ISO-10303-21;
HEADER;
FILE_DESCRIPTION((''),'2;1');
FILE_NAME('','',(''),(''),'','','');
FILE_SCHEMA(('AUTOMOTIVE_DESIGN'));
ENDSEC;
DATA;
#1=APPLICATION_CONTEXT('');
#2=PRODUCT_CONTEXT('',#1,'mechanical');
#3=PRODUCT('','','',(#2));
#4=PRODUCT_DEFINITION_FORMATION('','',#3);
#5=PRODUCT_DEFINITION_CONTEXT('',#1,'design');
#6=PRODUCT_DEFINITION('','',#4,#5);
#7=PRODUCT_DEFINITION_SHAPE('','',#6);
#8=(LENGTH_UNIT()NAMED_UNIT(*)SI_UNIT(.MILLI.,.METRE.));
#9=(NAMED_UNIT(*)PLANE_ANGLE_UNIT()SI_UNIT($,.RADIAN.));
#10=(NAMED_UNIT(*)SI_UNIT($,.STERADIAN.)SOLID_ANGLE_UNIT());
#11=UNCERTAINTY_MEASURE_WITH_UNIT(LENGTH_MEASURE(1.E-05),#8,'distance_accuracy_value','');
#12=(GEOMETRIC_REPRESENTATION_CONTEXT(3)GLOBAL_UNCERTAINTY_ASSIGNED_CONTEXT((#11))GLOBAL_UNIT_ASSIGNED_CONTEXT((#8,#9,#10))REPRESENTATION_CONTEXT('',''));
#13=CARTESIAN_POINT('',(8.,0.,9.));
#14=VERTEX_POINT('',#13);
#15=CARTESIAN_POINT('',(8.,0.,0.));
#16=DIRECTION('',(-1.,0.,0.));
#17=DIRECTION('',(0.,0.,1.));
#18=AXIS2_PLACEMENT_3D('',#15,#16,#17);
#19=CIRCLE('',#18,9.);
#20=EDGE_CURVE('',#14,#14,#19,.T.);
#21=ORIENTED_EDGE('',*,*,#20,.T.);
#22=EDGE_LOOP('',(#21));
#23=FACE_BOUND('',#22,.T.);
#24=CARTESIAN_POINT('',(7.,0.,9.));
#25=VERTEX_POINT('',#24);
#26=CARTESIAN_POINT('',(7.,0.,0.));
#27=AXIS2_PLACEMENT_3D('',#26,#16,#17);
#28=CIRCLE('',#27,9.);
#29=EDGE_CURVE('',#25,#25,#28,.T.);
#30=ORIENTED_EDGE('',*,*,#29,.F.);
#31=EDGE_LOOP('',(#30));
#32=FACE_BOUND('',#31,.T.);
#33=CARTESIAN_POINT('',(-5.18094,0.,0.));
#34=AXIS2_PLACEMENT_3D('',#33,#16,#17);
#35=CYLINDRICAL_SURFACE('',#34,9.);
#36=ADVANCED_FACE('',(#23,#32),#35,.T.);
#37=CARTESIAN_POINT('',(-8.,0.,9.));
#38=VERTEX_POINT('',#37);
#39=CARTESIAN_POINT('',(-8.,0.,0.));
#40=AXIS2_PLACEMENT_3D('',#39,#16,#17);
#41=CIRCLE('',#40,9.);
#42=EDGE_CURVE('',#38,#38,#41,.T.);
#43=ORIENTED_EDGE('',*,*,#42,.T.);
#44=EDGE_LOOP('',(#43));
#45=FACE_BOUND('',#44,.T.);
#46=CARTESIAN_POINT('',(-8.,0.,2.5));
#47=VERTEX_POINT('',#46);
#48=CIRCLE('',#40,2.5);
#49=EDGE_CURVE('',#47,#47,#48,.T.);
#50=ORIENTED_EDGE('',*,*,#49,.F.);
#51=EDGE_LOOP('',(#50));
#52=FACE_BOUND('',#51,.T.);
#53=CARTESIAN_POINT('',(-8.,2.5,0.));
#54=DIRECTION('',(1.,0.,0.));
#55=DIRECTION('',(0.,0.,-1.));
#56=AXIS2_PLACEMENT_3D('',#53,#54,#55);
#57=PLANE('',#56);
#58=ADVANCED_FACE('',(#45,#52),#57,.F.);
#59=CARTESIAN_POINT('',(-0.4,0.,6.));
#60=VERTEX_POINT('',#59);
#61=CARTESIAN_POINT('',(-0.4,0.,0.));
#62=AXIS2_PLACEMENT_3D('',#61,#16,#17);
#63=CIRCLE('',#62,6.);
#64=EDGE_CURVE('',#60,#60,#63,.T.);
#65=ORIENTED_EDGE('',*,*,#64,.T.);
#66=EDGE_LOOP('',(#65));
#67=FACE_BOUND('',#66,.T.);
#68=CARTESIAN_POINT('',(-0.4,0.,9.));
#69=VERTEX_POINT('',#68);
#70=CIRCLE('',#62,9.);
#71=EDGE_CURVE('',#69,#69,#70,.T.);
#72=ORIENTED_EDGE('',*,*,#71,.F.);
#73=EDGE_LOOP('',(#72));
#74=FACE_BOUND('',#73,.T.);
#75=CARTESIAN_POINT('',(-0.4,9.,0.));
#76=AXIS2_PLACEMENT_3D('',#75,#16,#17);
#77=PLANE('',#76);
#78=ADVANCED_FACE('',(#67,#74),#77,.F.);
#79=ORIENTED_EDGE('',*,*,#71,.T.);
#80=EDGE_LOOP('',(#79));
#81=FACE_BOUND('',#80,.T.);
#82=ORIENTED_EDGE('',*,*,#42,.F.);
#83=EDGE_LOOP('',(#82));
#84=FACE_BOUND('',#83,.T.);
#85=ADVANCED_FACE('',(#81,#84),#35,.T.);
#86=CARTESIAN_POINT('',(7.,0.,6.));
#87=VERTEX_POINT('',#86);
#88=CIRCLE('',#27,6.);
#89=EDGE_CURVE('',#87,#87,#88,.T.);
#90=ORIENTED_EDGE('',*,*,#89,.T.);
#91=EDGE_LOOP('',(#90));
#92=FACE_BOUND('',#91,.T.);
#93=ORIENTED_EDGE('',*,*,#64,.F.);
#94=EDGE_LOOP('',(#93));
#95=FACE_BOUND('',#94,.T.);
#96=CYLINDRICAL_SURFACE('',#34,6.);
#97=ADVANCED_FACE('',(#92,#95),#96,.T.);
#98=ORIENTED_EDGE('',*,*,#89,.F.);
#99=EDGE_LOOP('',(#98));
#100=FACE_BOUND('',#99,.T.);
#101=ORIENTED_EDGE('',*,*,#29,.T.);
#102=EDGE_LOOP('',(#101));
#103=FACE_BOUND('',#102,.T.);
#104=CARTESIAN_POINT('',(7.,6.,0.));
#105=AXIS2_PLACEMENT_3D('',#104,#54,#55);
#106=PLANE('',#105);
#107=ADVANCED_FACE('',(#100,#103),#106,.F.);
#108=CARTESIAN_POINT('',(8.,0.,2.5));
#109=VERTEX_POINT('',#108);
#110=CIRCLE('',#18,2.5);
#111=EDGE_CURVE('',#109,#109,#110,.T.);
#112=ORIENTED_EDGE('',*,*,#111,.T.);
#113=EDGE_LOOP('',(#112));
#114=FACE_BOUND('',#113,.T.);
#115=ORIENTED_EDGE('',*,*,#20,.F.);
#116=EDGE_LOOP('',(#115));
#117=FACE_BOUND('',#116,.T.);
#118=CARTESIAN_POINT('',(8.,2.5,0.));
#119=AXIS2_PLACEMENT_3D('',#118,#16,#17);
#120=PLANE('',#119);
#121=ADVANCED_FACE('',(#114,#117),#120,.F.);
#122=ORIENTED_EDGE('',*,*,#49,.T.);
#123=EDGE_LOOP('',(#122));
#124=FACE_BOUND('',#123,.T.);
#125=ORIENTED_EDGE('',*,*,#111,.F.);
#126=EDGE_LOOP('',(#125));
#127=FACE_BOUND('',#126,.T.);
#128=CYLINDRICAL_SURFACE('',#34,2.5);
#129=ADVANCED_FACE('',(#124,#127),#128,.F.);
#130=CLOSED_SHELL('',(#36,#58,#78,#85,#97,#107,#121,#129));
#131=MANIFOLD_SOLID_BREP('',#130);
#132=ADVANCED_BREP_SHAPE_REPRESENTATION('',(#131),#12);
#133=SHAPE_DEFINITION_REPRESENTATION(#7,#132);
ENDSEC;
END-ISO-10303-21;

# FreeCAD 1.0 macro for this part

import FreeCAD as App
import Part
import Sketcher
from FreeCAD import Vector

doc = App.newDocument("Part")
body = doc.addObject("PartDesign::Body", "Body")

# Sketch on XY plane
sketch1 = body.newObject("Sketcher::SketchObject", "Sketch")
sketch1.AttachmentSupport = (doc.getObject("XY_Plane"), [""])
sketch1.MapMode = "FlatFace"
sketch1.addGeometry(Part.LineSegment(Vector(-0.4, 6, 0), Vector(-0.4, 9, 0)), False)
sketch1.addGeometry(Part.LineSegment(Vector(-0.4, 9, 0), Vector(-8, 9, 0)), False)
sketch1.addGeometry(Part.LineSegment(Vector(-8, 9, 0), Vector(-8, 2.5, 0)), False)
sketch1.addGeometry(Part.LineSegment(Vector(-8, 2.5, 0), Vector(8, 2.5, 0)), False)
sketch1.addGeometry(Part.LineSegment(Vector(8, 2.5, 0), Vector(8, 9, 0)), False)
sketch1.addGeometry(Part.LineSegment(Vector(8, 9, 0), Vector(7, 9, 0)), False)
sketch1.addGeometry(Part.LineSegment(Vector(7, 9, 0), Vector(7, 6, 0)), False)
sketch1.addGeometry(Part.LineSegment(Vector(7, 6, 0), Vector(-0.4, 6, 0)), False)
sketch1.addConstraint(Sketcher.Constraint("Coincident", 0, 2, 1, 1))
sketch1.addConstraint(Sketcher.Constraint("Coincident", 1, 2, 2, 1))
sketch1.addConstraint(Sketcher.Constraint("Coincident", 2, 2, 3, 1))
sketch1.addConstraint(Sketcher.Constraint("Coincident", 3, 2, 4, 1))
sketch1.addConstraint(Sketcher.Constraint("Coincident", 4, 2, 5, 1))
sketch1.addConstraint(Sketcher.Constraint("Coincident", 5, 2, 6, 1))
sketch1.addConstraint(Sketcher.Constraint("Coincident", 6, 2, 7, 1))
sketch1.addConstraint(Sketcher.Constraint("Coincident", 7, 2, 0, 1))
sketch1.addConstraint(Sketcher.Constraint("Vertical", 0))
sketch1.addConstraint(Sketcher.Constraint("Horizontal", 1))
sketch1.addConstraint(Sketcher.Constraint("Vertical", 2))
sketch1.addConstraint(Sketcher.Constraint("Horizontal", 3))
sketch1.addConstraint(Sketcher.Constraint("Vertical", 4))
sketch1.addConstraint(Sketcher.Constraint("Horizontal", 5))
sketch1.addConstraint(Sketcher.Constraint("Vertical", 6))
sketch1.addConstraint(Sketcher.Constraint("Horizontal", 7))
sketch1.addConstraint(Sketcher.Constraint("Symmetric", 1, 2, 4, 2, -2))
sketch1.addConstraint(Sketcher.Constraint("DistanceX", 3, 1, 3, 2, 16.0))
sketch1.addConstraint(Sketcher.Constraint("DistanceX", 5, 2, 5, 1, 1.0))
sketch1.addConstraint(Sketcher.Constraint("DistanceY", 0, 1, 0, 2, 3.0))
sketch1.addConstraint(Sketcher.Constraint("DistanceX", 1, 2, 1, 1, 7.6))
sketch1.addConstraint(Sketcher.Constraint("DistanceY", 2, 2, 2, 1, 6.5))
sketch1.addConstraint(Sketcher.Constraint("DistanceY", -1, 1, 0, 2, 9.0))
revolution = body.newObject("PartDesign::Revolution", "Revolution")
revolution.Profile = sketch1
revolution.ReferenceAxis = (sketch1, ["H_Axis"])
revolution.Angle = 360

doc.recompute()
